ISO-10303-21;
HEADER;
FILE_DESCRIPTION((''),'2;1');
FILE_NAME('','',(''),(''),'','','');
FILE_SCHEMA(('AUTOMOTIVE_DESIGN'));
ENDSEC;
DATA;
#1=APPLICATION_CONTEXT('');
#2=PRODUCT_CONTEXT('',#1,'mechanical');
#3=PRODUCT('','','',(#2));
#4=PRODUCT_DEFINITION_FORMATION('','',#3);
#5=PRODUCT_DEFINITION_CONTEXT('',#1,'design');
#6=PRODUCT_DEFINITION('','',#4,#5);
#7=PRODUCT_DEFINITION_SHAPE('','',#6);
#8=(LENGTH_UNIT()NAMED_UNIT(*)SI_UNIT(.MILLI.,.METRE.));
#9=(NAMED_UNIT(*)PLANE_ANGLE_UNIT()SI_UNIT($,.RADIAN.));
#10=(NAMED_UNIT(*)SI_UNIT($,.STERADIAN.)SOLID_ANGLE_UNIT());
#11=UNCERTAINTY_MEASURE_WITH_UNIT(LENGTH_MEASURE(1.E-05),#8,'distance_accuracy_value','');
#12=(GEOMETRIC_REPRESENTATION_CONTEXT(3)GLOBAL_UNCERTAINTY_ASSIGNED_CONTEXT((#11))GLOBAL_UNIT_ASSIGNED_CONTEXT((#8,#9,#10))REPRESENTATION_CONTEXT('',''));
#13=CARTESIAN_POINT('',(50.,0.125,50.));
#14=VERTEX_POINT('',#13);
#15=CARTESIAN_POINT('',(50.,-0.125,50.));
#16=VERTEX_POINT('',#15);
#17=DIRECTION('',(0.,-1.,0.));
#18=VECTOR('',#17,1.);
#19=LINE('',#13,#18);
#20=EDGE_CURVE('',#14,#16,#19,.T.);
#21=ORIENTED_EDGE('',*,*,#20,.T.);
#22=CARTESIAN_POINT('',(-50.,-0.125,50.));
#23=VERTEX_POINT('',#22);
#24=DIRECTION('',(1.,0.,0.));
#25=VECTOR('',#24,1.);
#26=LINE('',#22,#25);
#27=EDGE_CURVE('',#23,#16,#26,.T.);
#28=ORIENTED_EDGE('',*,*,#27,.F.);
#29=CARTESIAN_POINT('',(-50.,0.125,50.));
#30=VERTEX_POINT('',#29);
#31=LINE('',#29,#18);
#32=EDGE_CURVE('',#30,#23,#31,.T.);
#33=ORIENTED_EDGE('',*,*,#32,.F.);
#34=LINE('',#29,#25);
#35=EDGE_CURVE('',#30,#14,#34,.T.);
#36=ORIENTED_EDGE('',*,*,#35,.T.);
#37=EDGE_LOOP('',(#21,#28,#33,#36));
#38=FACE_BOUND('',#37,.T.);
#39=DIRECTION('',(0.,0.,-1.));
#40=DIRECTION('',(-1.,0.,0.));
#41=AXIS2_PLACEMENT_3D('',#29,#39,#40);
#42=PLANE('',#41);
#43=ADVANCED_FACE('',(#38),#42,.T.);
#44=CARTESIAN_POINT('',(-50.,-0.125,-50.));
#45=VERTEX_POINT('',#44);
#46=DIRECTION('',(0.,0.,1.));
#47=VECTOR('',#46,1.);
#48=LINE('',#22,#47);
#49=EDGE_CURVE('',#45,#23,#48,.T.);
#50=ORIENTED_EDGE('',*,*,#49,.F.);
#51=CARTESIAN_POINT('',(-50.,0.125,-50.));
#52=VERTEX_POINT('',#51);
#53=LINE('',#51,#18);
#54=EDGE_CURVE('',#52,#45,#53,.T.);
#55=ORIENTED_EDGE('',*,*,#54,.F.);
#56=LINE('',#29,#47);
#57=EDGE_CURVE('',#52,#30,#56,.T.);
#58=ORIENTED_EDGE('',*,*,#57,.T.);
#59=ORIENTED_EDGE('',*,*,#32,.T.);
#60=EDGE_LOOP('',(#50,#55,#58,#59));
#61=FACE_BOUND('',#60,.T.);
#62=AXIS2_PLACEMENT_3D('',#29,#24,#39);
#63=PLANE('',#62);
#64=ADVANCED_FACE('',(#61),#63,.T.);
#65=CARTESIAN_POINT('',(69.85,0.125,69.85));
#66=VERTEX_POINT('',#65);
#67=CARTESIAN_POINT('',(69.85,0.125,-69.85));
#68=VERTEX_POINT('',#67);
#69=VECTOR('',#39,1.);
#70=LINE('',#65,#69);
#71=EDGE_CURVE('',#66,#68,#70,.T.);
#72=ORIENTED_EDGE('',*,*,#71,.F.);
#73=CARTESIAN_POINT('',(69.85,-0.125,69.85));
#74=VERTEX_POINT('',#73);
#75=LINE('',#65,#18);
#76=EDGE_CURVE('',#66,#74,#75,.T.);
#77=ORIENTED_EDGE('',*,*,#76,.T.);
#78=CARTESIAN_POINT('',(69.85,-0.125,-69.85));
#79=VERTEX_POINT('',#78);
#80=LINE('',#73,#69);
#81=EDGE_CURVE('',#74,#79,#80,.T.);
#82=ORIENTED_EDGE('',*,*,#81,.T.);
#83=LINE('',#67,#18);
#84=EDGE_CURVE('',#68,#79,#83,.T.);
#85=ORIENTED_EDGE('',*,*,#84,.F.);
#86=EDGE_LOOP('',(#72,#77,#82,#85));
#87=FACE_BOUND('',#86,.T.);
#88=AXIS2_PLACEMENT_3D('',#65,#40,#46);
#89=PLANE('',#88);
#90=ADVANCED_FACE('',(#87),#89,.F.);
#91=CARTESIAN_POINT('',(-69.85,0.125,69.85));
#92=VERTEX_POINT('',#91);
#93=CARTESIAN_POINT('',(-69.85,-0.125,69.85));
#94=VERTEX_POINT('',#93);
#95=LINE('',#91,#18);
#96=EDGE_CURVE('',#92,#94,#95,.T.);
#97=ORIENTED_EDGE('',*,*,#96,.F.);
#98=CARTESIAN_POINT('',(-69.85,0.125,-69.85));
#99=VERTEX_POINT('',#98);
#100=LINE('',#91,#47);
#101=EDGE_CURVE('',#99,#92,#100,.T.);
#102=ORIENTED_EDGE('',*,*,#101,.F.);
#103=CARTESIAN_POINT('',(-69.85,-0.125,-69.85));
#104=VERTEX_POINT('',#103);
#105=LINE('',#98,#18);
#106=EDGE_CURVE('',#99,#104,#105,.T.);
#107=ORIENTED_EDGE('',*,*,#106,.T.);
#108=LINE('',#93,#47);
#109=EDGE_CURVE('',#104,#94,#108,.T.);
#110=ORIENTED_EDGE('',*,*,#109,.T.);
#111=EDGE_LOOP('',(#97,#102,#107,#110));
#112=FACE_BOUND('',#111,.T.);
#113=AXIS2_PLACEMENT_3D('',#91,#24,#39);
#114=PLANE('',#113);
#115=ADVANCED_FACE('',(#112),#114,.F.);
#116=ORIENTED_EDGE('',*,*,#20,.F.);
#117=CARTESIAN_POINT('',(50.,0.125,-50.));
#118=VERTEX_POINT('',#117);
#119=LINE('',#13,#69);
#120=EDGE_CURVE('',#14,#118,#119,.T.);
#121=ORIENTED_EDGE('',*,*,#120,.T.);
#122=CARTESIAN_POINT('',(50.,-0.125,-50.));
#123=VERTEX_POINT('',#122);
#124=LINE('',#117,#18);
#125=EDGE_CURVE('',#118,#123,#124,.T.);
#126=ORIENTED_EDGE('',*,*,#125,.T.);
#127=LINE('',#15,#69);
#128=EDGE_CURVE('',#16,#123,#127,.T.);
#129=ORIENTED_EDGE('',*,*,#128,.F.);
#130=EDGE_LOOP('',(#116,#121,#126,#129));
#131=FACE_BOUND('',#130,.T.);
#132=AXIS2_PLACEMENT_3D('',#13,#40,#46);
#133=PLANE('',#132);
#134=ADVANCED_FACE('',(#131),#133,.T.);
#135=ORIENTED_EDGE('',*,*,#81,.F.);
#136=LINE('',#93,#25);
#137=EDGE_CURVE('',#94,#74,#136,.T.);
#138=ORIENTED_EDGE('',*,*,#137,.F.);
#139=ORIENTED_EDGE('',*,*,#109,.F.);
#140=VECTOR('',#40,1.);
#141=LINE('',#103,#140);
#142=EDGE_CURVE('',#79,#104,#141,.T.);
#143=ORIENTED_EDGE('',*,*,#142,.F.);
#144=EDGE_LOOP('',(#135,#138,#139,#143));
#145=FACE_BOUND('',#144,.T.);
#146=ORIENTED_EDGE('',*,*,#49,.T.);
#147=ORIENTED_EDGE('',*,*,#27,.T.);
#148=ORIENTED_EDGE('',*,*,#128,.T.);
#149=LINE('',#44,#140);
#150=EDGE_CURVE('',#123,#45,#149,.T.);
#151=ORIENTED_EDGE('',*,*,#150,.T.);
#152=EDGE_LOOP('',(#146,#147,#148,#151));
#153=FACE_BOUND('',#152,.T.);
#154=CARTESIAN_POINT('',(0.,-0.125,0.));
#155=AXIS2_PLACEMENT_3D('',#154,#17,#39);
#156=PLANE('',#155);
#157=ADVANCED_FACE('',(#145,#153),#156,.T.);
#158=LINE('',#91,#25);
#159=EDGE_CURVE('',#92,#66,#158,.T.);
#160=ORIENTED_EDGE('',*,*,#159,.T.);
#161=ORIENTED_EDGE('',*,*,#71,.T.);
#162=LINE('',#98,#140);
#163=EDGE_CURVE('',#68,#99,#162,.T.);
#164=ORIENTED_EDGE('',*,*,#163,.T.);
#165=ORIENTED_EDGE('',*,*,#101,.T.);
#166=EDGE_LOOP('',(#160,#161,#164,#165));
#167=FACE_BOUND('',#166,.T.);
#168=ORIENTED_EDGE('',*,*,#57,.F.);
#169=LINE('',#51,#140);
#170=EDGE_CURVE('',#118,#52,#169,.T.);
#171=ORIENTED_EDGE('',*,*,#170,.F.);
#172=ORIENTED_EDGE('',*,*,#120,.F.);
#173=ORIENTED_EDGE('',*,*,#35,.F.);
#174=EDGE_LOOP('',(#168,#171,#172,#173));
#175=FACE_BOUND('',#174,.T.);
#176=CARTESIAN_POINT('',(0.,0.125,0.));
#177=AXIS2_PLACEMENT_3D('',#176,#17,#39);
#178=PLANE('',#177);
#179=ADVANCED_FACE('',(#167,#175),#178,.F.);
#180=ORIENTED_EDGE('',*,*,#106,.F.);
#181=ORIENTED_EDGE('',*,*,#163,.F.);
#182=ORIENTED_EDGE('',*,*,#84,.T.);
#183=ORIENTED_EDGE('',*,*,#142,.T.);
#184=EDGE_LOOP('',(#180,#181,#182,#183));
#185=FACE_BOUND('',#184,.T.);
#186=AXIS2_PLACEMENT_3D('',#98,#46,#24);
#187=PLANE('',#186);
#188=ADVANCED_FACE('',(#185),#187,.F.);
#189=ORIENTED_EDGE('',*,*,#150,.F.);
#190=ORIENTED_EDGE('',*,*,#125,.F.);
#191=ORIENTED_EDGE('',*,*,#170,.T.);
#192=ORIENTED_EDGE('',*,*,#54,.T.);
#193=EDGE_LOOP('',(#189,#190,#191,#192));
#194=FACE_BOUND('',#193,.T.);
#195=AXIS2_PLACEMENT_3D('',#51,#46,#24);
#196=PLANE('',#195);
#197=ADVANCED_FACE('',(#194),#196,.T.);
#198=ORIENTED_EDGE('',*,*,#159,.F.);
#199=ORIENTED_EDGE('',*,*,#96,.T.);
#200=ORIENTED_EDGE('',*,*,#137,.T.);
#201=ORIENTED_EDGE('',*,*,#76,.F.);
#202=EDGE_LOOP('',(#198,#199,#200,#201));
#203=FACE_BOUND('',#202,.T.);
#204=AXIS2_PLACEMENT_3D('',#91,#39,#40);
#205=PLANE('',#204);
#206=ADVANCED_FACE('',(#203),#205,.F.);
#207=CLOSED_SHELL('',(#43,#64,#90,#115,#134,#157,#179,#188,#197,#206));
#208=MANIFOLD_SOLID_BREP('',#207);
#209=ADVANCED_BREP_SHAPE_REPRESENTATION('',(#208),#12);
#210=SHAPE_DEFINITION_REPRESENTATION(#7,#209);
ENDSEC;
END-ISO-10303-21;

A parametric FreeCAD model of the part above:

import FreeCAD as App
import Part
import Sketcher


def add_polygon(sketch, points):
    """Adds a closed chain of lines whose ends are joined by coincident constraints."""
    first, n = sketch.GeometryCount, len(points)
    for a, b in zip(points, points[1:] + points[:1]):
        sketch.addGeometry(Part.LineSegment(App.Vector(*a, 0), App.Vector(*b, 0)), False)
    for i in range(n):
        sketch.addConstraint(Sketcher.Constraint("Coincident", first + i, 2, first + (i + 1) % n, 1))

doc = App.newDocument("Part")
body = doc.addObject("PartDesign::Body", "Body")

# Sketch on XZ plane
sketch1 = body.newObject("Sketcher::SketchObject", "Sketch")
sketch1.AttachmentSupport = (doc.getObject("XZ_Plane"), [""])
sketch1.MapMode = "FlatFace"
add_polygon(sketch1, [(-70, -70), (-70, 70), (70, 70), (70, -70)])  # lines 0-3
add_polygon(sketch1, [(50, 50), (-50, 50), (-50, -50), (50, -50)])  # lines 4-7
sketch1.addConstraint(Sketcher.Constraint("Vertical", 0))
sketch1.addConstraint(Sketcher.Constraint("Horizontal", 1))
sketch1.addConstraint(Sketcher.Constraint("Vertical", 2))
sketch1.addConstraint(Sketcher.Constraint("Horizontal", 3))
sketch1.addConstraint(Sketcher.Constraint("Horizontal", 4))
sketch1.addConstraint(Sketcher.Constraint("Vertical", 5))
sketch1.addConstraint(Sketcher.Constraint("Horizontal", 6))
sketch1.addConstraint(Sketcher.Constraint("Vertical", 7))
sketch1.addConstraint(Sketcher.Constraint("Symmetric", 0, 2, 2, 2, -1, 1))
sketch1.addConstraint(Sketcher.Constraint("Symmetric", 4, 2, 6, 2, -1, 1))
sketch1.addConstraint(Sketcher.Constraint("Equal", 3, 0))
sketch1.addConstraint(Sketcher.Constraint("Equal", 6, 5))
sketch1.addConstraint(Sketcher.Constraint("DistanceX", 4, 2, 4, 1, 100.0))
sketch1.addConstraint(Sketcher.Constraint("DistanceX", 1, 1, 1, 2, 139.7))
pad1 = body.newObject("PartDesign::Pad", "Pad")
pad1.Profile = sketch1
pad1.Length = 0.25
pad1.Midplane = True

doc.recompute()
